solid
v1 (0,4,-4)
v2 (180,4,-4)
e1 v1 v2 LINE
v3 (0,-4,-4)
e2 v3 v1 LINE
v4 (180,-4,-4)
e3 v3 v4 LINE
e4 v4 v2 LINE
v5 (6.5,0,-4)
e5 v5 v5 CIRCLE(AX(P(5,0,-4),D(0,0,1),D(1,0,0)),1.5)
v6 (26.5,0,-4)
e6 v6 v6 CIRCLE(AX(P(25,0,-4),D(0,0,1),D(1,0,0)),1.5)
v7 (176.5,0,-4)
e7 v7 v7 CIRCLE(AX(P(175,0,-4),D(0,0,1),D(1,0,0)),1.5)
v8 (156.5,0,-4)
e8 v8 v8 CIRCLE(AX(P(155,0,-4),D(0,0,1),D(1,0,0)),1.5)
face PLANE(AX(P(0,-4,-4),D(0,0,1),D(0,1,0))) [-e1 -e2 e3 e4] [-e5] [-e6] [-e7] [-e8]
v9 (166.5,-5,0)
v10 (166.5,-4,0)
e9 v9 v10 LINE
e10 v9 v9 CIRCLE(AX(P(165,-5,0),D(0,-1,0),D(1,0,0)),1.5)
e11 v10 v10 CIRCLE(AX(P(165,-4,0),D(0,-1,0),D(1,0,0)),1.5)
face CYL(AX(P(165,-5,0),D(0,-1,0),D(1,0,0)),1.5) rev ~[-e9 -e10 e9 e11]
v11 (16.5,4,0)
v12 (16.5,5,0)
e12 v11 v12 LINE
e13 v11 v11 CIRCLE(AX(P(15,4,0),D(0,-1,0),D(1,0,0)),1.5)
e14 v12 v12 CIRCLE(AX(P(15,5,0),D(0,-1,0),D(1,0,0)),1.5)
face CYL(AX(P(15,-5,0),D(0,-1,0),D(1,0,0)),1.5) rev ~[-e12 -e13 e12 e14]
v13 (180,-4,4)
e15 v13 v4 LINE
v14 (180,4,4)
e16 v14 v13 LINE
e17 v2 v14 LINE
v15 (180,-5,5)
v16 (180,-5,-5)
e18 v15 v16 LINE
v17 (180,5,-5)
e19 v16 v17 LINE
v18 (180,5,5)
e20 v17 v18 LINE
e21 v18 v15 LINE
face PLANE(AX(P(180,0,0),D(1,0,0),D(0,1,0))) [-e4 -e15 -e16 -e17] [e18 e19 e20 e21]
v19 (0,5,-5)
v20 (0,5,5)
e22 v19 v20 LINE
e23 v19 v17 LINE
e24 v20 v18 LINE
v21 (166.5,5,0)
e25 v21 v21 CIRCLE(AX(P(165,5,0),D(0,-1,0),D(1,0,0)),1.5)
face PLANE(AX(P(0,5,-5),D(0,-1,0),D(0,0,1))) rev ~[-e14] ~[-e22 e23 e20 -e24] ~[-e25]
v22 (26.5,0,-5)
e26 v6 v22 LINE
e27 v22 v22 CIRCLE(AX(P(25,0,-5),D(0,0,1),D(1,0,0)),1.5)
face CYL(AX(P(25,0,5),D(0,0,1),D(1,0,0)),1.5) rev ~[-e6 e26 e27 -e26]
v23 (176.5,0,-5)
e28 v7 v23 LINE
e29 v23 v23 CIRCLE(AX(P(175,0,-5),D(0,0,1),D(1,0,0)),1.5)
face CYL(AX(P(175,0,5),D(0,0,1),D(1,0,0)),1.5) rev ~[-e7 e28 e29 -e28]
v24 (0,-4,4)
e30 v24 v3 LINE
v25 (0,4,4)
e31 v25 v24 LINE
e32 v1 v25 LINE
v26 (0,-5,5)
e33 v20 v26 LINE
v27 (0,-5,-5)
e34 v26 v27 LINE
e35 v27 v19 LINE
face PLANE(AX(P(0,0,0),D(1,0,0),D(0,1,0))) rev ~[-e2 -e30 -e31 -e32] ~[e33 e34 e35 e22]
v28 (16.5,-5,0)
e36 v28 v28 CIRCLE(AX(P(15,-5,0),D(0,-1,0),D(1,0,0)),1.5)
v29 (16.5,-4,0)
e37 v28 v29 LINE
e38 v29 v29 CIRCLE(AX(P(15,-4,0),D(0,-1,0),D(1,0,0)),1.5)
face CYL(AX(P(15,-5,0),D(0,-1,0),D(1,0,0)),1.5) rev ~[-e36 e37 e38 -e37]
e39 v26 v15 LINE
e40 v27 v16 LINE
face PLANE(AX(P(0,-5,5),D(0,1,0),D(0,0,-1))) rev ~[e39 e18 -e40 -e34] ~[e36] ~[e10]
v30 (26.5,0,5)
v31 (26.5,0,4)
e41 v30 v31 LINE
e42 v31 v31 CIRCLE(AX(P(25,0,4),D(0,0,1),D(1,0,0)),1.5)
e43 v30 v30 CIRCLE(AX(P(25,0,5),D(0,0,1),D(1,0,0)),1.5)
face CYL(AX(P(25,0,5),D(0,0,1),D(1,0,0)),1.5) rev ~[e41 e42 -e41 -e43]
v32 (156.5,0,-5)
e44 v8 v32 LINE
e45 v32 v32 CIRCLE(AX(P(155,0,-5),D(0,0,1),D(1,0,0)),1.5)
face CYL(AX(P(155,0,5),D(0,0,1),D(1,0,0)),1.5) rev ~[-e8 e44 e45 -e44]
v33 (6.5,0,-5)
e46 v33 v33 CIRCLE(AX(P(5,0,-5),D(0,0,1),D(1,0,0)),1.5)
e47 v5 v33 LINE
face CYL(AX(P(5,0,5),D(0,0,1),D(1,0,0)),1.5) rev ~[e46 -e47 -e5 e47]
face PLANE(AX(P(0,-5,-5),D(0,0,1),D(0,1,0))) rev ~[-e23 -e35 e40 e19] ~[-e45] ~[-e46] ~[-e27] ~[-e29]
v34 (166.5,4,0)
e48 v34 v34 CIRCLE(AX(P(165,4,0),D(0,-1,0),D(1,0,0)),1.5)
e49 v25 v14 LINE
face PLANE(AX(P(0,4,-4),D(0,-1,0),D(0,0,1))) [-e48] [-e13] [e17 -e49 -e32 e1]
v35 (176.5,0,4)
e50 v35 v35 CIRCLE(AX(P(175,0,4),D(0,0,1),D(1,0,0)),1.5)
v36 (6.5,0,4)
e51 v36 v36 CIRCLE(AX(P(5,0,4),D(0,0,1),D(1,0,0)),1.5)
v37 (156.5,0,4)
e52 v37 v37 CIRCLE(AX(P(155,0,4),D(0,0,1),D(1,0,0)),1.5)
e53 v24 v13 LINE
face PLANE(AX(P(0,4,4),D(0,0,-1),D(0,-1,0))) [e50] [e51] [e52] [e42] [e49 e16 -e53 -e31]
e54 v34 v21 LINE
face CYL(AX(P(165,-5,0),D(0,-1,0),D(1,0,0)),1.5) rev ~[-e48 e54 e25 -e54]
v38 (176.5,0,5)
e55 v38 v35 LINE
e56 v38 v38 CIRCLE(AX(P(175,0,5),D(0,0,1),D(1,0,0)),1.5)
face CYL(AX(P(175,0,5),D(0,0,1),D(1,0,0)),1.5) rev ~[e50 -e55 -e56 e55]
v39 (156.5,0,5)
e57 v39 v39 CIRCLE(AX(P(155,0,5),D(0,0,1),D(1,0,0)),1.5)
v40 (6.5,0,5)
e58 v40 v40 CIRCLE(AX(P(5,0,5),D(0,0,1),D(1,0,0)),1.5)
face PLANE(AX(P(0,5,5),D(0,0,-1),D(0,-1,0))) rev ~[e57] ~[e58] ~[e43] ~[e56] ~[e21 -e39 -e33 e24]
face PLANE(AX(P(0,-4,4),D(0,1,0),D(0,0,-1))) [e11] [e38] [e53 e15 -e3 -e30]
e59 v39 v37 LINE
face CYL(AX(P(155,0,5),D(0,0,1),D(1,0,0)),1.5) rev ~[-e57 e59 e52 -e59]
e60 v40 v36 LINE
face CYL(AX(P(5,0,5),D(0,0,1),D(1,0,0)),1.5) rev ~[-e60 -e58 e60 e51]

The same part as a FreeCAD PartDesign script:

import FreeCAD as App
import Part
import Sketcher

doc = App.newDocument("Part")
body = doc.addObject("PartDesign::Body", "Body")

sketch1 = body.newObject("Sketcher::SketchObject", "Sketch")
sketch1.AttachmentSupport = (doc.getObject("YZ_Plane"), [""])
sketch1.MapMode = "FlatFace"
sketch1.addGeometry([
    Part.LineSegment(App.Vector(5, -5, 0), App.Vector(5, 5, 0)),
    Part.LineSegment(App.Vector(5, 5, 0), App.Vector(-5, 5, 0)),
    Part.LineSegment(App.Vector(-5, 5, 0), App.Vector(-5, -5, 0)),
    Part.LineSegment(App.Vector(-5, -5, 0), App.Vector(5, -5, 0)),
    Part.LineSegment(App.Vector(-4, 4, 0), App.Vector(4, 4, 0)),
    Part.LineSegment(App.Vector(4, 4, 0), App.Vector(4, -4, 0)),
    Part.LineSegment(App.Vector(4, -4, 0), App.Vector(-4, -4, 0)),
    Part.LineSegment(App.Vector(-4, -4, 0), App.Vector(-4, 4, 0)),
], False)
sketch1.addConstraint([
    Sketcher.Constraint("Coincident", 0, 2, 1, 1),
    Sketcher.Constraint("Coincident", 1, 2, 2, 1),
    Sketcher.Constraint("Coincident", 2, 2, 3, 1),
    Sketcher.Constraint("Coincident", 3, 2, 0, 1),
    Sketcher.Constraint("Coincident", 4, 2, 5, 1),
    Sketcher.Constraint("Coincident", 5, 2, 6, 1),
    Sketcher.Constraint("Coincident", 6, 2, 7, 1),
    Sketcher.Constraint("Coincident", 7, 2, 4, 1),
    Sketcher.Constraint("Vertical", 0),
    Sketcher.Constraint("Horizontal", 1),
    Sketcher.Constraint("Vertical", 2),
    Sketcher.Constraint("Horizontal", 3),
    Sketcher.Constraint("Horizontal", 4),
    Sketcher.Constraint("Vertical", 5),
    Sketcher.Constraint("Horizontal", 6),
    Sketcher.Constraint("Vertical", 7),
    Sketcher.Constraint("Symmetric", 0, 2, 2, 2, -1, 1),
    Sketcher.Constraint("Symmetric", 4, 2, 6, 2, -1, 1),
    Sketcher.Constraint("Equal", 3, 0),
    Sketcher.Constraint("Equal", 6, 5),
    Sketcher.Constraint("DistanceX", 1, 2, 1, 1, 10.0),
    Sketcher.Constraint("DistanceX", 4, 2, 0, 2, 1.0),
])
pad1 = body.newObject("PartDesign::Pad", "Pad")
pad1.Profile = sketch1
pad1.Length = 180

sketch2 = body.newObject("Sketcher::SketchObject", "Sketch001")
sketch2.AttachmentSupport = (doc.getObject("XY_Plane"), [""])
sketch2.MapMode = "FlatFace"
sketch2.AttachmentOffset = App.Placement(App.Vector(0, 0, 5), App.Rotation())
sketch2.addGeometry([
    Part.Circle(App.Vector(5, 0, 0), App.Vector(0, 0, 1), 1.5),
    Part.Circle(App.Vector(175, 0, 0), App.Vector(0, 0, 1), 1.5),
], False)
sketch2.addConstraint([
    Sketcher.Constraint("Equal", 0, 1),
    Sketcher.Constraint("PointOnObject", 0, 3, -1),
    Sketcher.Constraint("PointOnObject", 1, 3, -1),
    Sketcher.Constraint("Diameter", 0, 3.0),
    Sketcher.Constraint("DistanceX", -1, 1, 0, 3, 5.0),
    Sketcher.Constraint("DistanceX", -1, 1, 1, 3, 175.0),
])
pocket1 = body.newObject("PartDesign::Pocket", "Pocket")
pocket1.Profile = sketch2
pocket1.Length = 200

sketch3 = body.newObject("Sketcher::SketchObject", "Sketch002")
sketch3.AttachmentSupport = (doc.getObject("XZ_Plane"), [""])
sketch3.MapMode = "FlatFace"
sketch3.AttachmentOffset = App.Placement(App.Vector(0, 0, 5), App.Rotation())
sketch3.addGeometry([
    Part.Circle(App.Vector(15, 0, 0), App.Vector(0, 0, 1), 1.5),
    Part.Circle(App.Vector(165, 0, 0), App.Vector(0, 0, 1), 1.5),
], False)
sketch3.addConstraint([
    Sketcher.Constraint("Equal", 0, 1),
    Sketcher.Constraint("PointOnObject", 0, 3, -1),
    Sketcher.Constraint("PointOnObject", 1, 3, -1),
    Sketcher.Constraint("Diameter", 0, 3.0),
    Sketcher.Constraint("DistanceX", -1, 1, 0, 3, 15.0),
    Sketcher.Constraint("DistanceX", -1, 1, 1, 3, 165.0),
])
pocket2 = body.newObject("PartDesign::Pocket", "Pocket001")
pocket2.Profile = sketch3
pocket2.Length = 200

sketch4 = body.newObject("Sketcher::SketchObject", "Sketch003")
sketch4.AttachmentSupport = (doc.getObject("XY_Plane"), [""])
sketch4.MapMode = "FlatFace"
sketch4.AttachmentOffset = App.Placement(App.Vector(0, 0, 5), App.Rotation())
sketch4.addGeometry([
    Part.Circle(App.Vector(25, 0, 0), App.Vector(0, 0, 1), 1.5),
    Part.Circle(App.Vector(155, 0, 0), App.Vector(0, 0, 1), 1.5),
], False)
sketch4.addConstraint([
    Sketcher.Constraint("Equal", 0, 1),
    Sketcher.Constraint("PointOnObject", 0, 3, -1),
    Sketcher.Constraint("PointOnObject", 1, 3, -1),
    Sketcher.Constraint("Diameter", 0, 3.0),
    Sketcher.Constraint("DistanceX", -1, 1, 0, 3, 25.0),
    Sketcher.Constraint("DistanceX", -1, 1, 1, 3, 155.0),
])
pocket3 = body.newObject("PartDesign::Pocket", "Pocket002")
pocket3.Profile = sketch4
pocket3.Length = 200

doc.recompute()
